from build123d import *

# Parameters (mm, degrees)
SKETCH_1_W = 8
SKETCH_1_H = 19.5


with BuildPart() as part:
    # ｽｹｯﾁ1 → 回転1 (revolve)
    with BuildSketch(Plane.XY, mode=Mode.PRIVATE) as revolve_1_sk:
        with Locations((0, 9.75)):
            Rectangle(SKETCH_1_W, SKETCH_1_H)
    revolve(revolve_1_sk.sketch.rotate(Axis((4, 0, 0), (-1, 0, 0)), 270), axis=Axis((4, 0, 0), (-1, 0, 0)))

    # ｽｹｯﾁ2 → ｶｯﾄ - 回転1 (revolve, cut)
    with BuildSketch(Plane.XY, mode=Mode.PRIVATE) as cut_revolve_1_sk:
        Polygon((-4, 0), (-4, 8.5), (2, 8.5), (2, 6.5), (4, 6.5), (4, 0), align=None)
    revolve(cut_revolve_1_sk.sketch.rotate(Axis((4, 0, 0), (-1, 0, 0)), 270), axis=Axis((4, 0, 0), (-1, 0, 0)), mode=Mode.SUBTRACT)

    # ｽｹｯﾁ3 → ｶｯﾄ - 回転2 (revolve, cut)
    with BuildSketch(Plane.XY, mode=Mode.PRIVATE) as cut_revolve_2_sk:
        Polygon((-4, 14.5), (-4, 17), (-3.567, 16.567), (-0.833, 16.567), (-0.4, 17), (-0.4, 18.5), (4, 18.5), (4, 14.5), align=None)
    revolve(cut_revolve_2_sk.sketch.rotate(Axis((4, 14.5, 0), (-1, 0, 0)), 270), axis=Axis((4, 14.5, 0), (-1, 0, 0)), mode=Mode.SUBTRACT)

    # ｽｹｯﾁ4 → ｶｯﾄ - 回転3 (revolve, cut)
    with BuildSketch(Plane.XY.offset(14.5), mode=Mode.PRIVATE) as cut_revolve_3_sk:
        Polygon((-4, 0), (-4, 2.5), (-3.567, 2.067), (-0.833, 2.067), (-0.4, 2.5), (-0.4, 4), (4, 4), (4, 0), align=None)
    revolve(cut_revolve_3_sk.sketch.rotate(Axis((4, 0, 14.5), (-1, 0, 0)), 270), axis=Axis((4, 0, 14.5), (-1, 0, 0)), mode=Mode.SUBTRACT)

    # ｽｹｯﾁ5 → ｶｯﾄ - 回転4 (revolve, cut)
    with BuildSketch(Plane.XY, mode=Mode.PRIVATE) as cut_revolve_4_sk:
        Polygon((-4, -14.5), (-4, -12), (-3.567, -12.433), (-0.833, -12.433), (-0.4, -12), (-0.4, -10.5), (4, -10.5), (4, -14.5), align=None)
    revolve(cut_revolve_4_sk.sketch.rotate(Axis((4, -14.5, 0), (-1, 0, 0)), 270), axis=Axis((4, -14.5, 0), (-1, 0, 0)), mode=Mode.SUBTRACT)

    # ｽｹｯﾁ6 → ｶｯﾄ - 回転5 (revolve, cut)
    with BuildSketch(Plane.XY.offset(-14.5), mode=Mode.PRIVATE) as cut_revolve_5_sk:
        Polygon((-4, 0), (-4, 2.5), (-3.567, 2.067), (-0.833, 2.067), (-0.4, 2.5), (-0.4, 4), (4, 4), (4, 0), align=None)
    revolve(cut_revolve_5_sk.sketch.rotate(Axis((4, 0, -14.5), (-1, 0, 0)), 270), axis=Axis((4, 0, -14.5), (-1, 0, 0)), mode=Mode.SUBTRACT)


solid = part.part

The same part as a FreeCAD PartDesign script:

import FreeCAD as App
import Part
import Sketcher

V = App.Vector
Q = App.Units.Quantity

doc = App.newDocument("Part")
body = doc.addObject("PartDesign::Body", "Body")

# Sketch on XY plane
sketch1 = doc.addObject("Sketcher::SketchObject", "Sketch")
body.addObject(sketch1)
sketch1.AttachmentSupport = (doc.XY_Plane, [""])
sketch1.MapMode = "FlatFace"
sketch1.addGeometry(Part.LineSegment(V(-4, 19.5, 0), V(-4, 0, 0)), False)
sketch1.addGeometry(Part.LineSegment(V(-4, 0, 0), V(4, 0, 0)), False)
sketch1.addGeometry(Part.LineSegment(V(4, 0, 0), V(4, 19.5, 0)), False)
sketch1.addGeometry(Part.LineSegment(V(4, 19.5, 0), V(-4, 19.5, 0)), False)
sketch1.addConstraint(Sketcher.Constraint("Coincident", 0, 2, 1, 1))
sketch1.addConstraint(Sketcher.Constraint("Coincident", 1, 2, 2, 1))
sketch1.addConstraint(Sketcher.Constraint("Coincident", 2, 2, 3, 1))
sketch1.addConstraint(Sketcher.Constraint("Coincident", 3, 2, 0, 1))
sketch1.addConstraint(Sketcher.Constraint("Vertical", 0))
sketch1.addConstraint(Sketcher.Constraint("Horizontal", 1))
sketch1.addConstraint(Sketcher.Constraint("Vertical", 2))
sketch1.addConstraint(Sketcher.Constraint("Horizontal", 3))
sketch1.addConstraint(Sketcher.Constraint("Symmetric", 0, 2, 1, 2, -1, 1))
sketch1.addConstraint(Sketcher.Constraint("DistanceX", 1, 1, 1, 2, Q("8 mm")))
sketch1.addConstraint(Sketcher.Constraint("DistanceY", 0, 2, 0, 1, Q("19.5 mm")))
revolution = doc.addObject("PartDesign::Revolution", "Revolution")
body.addObject(revolution)
revolution.Profile = sketch1
revolution.ReferenceAxis = (sketch1, ["H_Axis"])
revolution.Angle = 360

# Sketch on XY plane
sketch2 = doc.addObject("Sketcher::SketchObject", "Sketch001")
body.addObject(sketch2)
sketch2.AttachmentSupport = (doc.XY_Plane, [""])
sketch2.MapMode = "FlatFace"
sketch2.addGeometry(Part.LineSegment(V(-4, 8.5, 0), V(-4, 0, 0)), False)
sketch2.addGeometry(Part.LineSegment(V(-4, 0, 0), V(4, 0, 0)), False)
sketch2.addGeometry(Part.LineSegment(V(4, 0, 0), V(4, 6.5, 0)), False)
sketch2.addGeometry(Part.LineSegment(V(4, 6.5, 0), V(2, 6.5, 0)), False)
sketch2.addGeometry(Part.LineSegment(V(2, 6.5, 0), V(2, 8.5, 0)), False)
sketch2.addGeometry(Part.LineSegment(V(2, 8.5, 0), V(-4, 8.5, 0)), False)
sketch2.addConstraint(Sketcher.Constraint("Coincident", 0, 2, 1, 1))
sketch2.addConstraint(Sketcher.Constraint("Coincident", 1, 2, 2, 1))
sketch2.addConstraint(Sketcher.Constraint("Coincident", 2, 2, 3, 1))
sketch2.addConstraint(Sketcher.Constraint("Coincident", 3, 2, 4, 1))
sketch2.addConstraint(Sketcher.Constraint("Coincident", 4, 2, 5, 1))
sketch2.addConstraint(Sketcher.Constraint("Coincident", 5, 2, 0, 1))
sketch2.addConstraint(Sketcher.Constraint("Vertical", 0))
sketch2.addConstraint(Sketcher.Constraint("Horizontal", 1))
sketch2.addConstraint(Sketcher.Constraint("Vertical", 2))
sketch2.addConstraint(Sketcher.Constraint("Horizontal", 3))
sketch2.addConstraint(Sketcher.Constraint("Vertical", 4))
sketch2.addConstraint(Sketcher.Constraint("Horizontal", 5))
sketch2.addConstraint(Sketcher.Constraint("Symmetric", 0, 2, 1, 2, -1, 1))
sketch2.addConstraint(Sketcher.Constraint("Equal", 3, 4))
sketch2.addConstraint(Sketcher.Constraint("DistanceX", 1, 1, 1, 2, Q("8 mm")))
sketch2.addConstraint(Sketcher.Constraint("DistanceX", 3, 2, 3, 1, Q("2 mm")))
sketch2.addConstraint(Sketcher.Constraint("DistanceY", 0, 2, 0, 1, Q("8.5 mm")))
groove = doc.addObject("PartDesign::Groove", "Groove")
body.addObject(groove)
groove.Profile = sketch2
groove.ReferenceAxis = (sketch2, ["H_Axis"])
groove.Angle = 360

# Sketch on XY plane
sketch3 = doc.addObject("Sketcher::SketchObject", "Sketch002")
body.addObject(sketch3)
sketch3.AttachmentSupport = (doc.XY_Plane, [""])
sketch3.MapMode = "FlatFace"
sketch3.addGeometry(Part.LineSegment(V(-4, 17, 0), V(-4, 14.5, 0)), False)
sketch3.addGeometry(Part.LineSegment(V(-4, 14.5, 0), V(4, 14.5, 0)), False)
sketch3.addGeometry(Part.LineSegment(V(4, 14.5, 0), V(4, 18.5, 0)), False)
sketch3.addGeometry(Part.LineSegment(V(4, 18.5, 0), V(-0.4, 18.5, 0)), False)
sketch3.addGeometry(Part.LineSegment(V(-0.4, 18.5, 0), V(-0.4, 17, 0)), False)
sketch3.addGeometry(Part.LineSegment(V(-0.4, 17, 0), V(-0.833, 16.567, 0)), False)
sketch3.addGeometry(Part.LineSegment(V(-0.833, 16.567, 0), V(-3.567, 16.567, 0)), False)
sketch3.addGeometry(Part.LineSegment(V(-3.567, 16.567, 0), V(-4, 17, 0)), False)
sketch3.addGeometry(Part.LineSegment(V(4, 14.5, 0), V(-4, 14.5, 0)), True)  # axis
sketch3.addConstraint(Sketcher.Constraint("Coincident", 0, 2, 1, 1))
sketch3.addConstraint(Sketcher.Constraint("Coincident", 1, 2, 2, 1))
sketch3.addConstraint(Sketcher.Constraint("Coincident", 2, 2, 3, 1))
sketch3.addConstraint(Sketcher.Constraint("Coincident", 3, 2, 4, 1))
sketch3.addConstraint(Sketcher.Constraint("Coincident", 4, 2, 5, 1))
sketch3.addConstraint(Sketcher.Constraint("Coincident", 5, 2, 6, 1))
sketch3.addConstraint(Sketcher.Constraint("Coincident", 6, 2, 7, 1))
sketch3.addConstraint(Sketcher.Constraint("Coincident", 7, 2, 0, 1))
sketch3.addConstraint(Sketcher.Constraint("Vertical", 0))
sketch3.addConstraint(Sketcher.Constraint("Horizontal", 1))
sketch3.addConstraint(Sketcher.Constraint("Vertical", 2))
sketch3.addConstraint(Sketcher.Constraint("Horizontal", 3))
sketch3.addConstraint(Sketcher.Constraint("Vertical", 4))
sketch3.addConstraint(Sketcher.Constraint("Horizontal", 6))
sketch3.addConstraint(Sketcher.Constraint("Horizontal", 8))
sketch3.addConstraint(Sketcher.Constraint("Coincident", 8, 1, 1, 2))
sketch3.addConstraint(Sketcher.Constraint("Perpendicular", 5, 7))
sketch3.addConstraint(Sketcher.Constraint("Horizontal", 4, 2, 7, 2))
sketch3.addConstraint(Sketcher.Constraint("Vertical", 7, 2, 8, 2))
sketch3.addConstraint(Sketcher.Constraint("Equal", 5, 7))
sketch3.addConstraint(Sketcher.Constraint("DistanceX", 1, 1, 1, 2, Q("8 mm")))
sketch3.addConstraint(Sketcher.Constraint("DistanceY", 2, 1, 2, 2, Q("4 mm")))
sketch3.addConstraint(Sketcher.Constraint("DistanceX", 3, 2, 3, 1, Q("4.4 mm")))
sketch3.addConstraint(Sketcher.Constraint("DistanceY", 0, 2, 0, 1, Q("2.5 mm")))
sketch3.addConstraint(Sketcher.Constraint("DistanceX", 0, 2, -1, 1, Q("4 mm")))
sketch3.addConstraint(Sketcher.Constraint("DistanceY", -1, 1, 4, 2, Q("17 mm")))
sketch3.addConstraint(Sketcher.Constraint("DistanceX", 6, 2, 6, 1, Q("2.734 mm")))
groove2 = doc.addObject("PartDesign::Groove", "Groove001")
body.addObject(groove2)
groove2.Profile = sketch3
groove2.ReferenceAxis = (sketch3, ["Axis0"])
groove2.Angle = 360

# Sketch on XY plane
sketch4 = doc.addObject("Sketcher::SketchObject", "Sketch003")
body.addObject(sketch4)
sketch4.AttachmentSupport = (doc.XY_Plane, [""])
sketch4.MapMode = "FlatFace"
sketch4.AttachmentOffset = App.Placement(V(0, 0, 14.5), App.Rotation())
sketch4.addGeometry(Part.LineSegment(V(-4, 2.5, 0), V(-4, 0, 0)), False)
sketch4.addGeometry(Part.LineSegment(V(-4, 0, 0), V(4, 0, 0)), False)
sketch4.addGeometry(Part.LineSegment(V(4, 0, 0), V(4, 4, 0)), False)
sketch4.addGeometry(Part.LineSegment(V(4, 4, 0), V(-0.4, 4, 0)), False)
sketch4.addGeometry(Part.LineSegment(V(-0.4, 4, 0), V(-0.4, 2.5, 0)), False)
sketch4.addGeometry(Part.LineSegment(V(-0.4, 2.5, 0), V(-0.833, 2.067, 0)), False)
sketch4.addGeometry(Part.LineSegment(V(-0.833, 2.067, 0), V(-3.567, 2.067, 0)), False)
sketch4.addGeometry(Part.LineSegment(V(-3.567, 2.067, 0), V(-4, 2.5, 0)), False)
sketch4.addConstraint(Sketcher.Constraint("Coincident", 0, 2, 1, 1))
sketch4.addConstraint(Sketcher.Constraint("Coincident", 1, 2, 2, 1))
sketch4.addConstraint(Sketcher.Constraint("Coincident", 2, 2, 3, 1))
sketch4.addConstraint(Sketcher.Constraint("Coincident", 3, 2, 4, 1))
sketch4.addConstraint(Sketcher.Constraint("Coincident", 4, 2, 5, 1))
sketch4.addConstraint(Sketcher.Constraint("Coincident", 5, 2, 6, 1))
sketch4.addConstraint(Sketcher.Constraint("Coincident", 6, 2, 7, 1))
sketch4.addConstraint(Sketcher.Constraint("Coincident", 7, 2, 0, 1))
sketch4.addConstraint(Sketcher.Constraint("Vertical", 0))
sketch4.addConstraint(Sketcher.Constraint("Horizontal", 1))
sketch4.addConstraint(Sketcher.Constraint("Vertical", 2))
sketch4.addConstraint(Sketcher.Constraint("Horizontal", 3))
sketch4.addConstraint(Sketcher.Constraint("Vertical", 4))
sketch4.addConstraint(Sketcher.Constraint("Horizontal", 6))
sketch4.addConstraint(Sketcher.Constraint("Symmetric", 0, 2, 1, 2, -1, 1))
sketch4.addConstraint(Sketcher.Constraint("Perpendicular", 5, 7))
sketch4.addConstraint(Sketcher.Constraint("Horizontal", 4, 2, 7, 2))
sketch4.addConstraint(Sketcher.Constraint("Equal", 5, 7))
sketch4.addConstraint(Sketcher.Constraint("DistanceX", 1, 1, 1, 2, Q("8 mm")))
sketch4.addConstraint(Sketcher.Constraint("DistanceY", 2, 1, 2, 2, Q("4 mm")))
sketch4.addConstraint(Sketcher.Constraint("DistanceX", 3, 2, 3, 1, Q("4.4 mm")))
sketch4.addConstraint(Sketcher.Constraint("DistanceY", 0, 2, 0, 1, Q("2.5 mm")))
sketch4.addConstraint(Sketcher.Constraint("DistanceX", 6, 2, 6, 1, Q("2.734 mm")))
groove3 = doc.addObject("PartDesign::Groove", "Groove002")
body.addObject(groove3)
groove3.Profile = sketch4
groove3.ReferenceAxis = (sketch4, ["H_Axis"])
groove3.Angle = 360

# Sketch on XY plane
sketch5 = doc.addObject("Sketcher::SketchObject", "Sketch004")
body.addObject(sketch5)
sketch5.AttachmentSupport = (doc.XY_Plane, [""])
sketch5.MapMode = "FlatFace"
sketch5.addGeometry(Part.LineSegment(V(-4, -12, 0), V(-4, -14.5, 0)), False)
sketch5.addGeometry(Part.LineSegment(V(-4, -14.5, 0), V(4, -14.5, 0)), False)
sketch5.addGeometry(Part.LineSegment(V(4, -14.5, 0), V(4, -10.5, 0)), False)
sketch5.addGeometry(Part.LineSegment(V(4, -10.5, 0), V(-0.4, -10.5, 0)), False)
sketch5.addGeometry(Part.LineSegment(V(-0.4, -10.5, 0), V(-0.4, -12, 0)), False)
sketch5.addGeometry(Part.LineSegment(V(-0.4, -12, 0), V(-0.833, -12.433, 0)), False)
sketch5.addGeometry(Part.LineSegment(V(-0.833, -12.433, 0), V(-3.567, -12.433, 0)), False)
sketch5.addGeometry(Part.LineSegment(V(-3.567, -12.433, 0), V(-4, -12, 0)), False)
sketch5.addGeometry(Part.LineSegment(V(4, -14.5, 0), V(-4, -14.5, 0)), True)  # axis
sketch5.addConstraint(Sketcher.Constraint("Coincident", 0, 2, 1, 1))
sketch5.addConstraint(Sketcher.Constraint("Coincident", 1, 2, 2, 1))
sketch5.addConstraint(Sketcher.Constraint("Coincident", 2, 2, 3, 1))
sketch5.addConstraint(Sketcher.Constraint("Coincident", 3, 2, 4, 1))
sketch5.addConstraint(Sketcher.Constraint("Coincident", 4, 2, 5, 1))
sketch5.addConstraint(Sketcher.Constraint("Coincident", 5, 2, 6, 1))
sketch5.addConstraint(Sketcher.Constraint("Coincident", 6, 2, 7, 1))
sketch5.addConstraint(Sketcher.Constraint("Coincident", 7, 2, 0, 1))
sketch5.addConstraint(Sketcher.Constraint("Vertical", 0))
sketch5.addConstraint(Sketcher.Constraint("Horizontal", 1))
sketch5.addConstraint(Sketcher.Constraint("Vertical", 2))
sketch5.addConstraint(Sketcher.Constraint("Horizontal", 3))
sketch5.addConstraint(Sketcher.Constraint("Vertical", 4))
sketch5.addConstraint(Sketcher.Constraint("Horizontal", 6))
sketch5.addConstraint(Sketcher.Constraint("Horizontal", 8))
sketch5.addConstraint(Sketcher.Constraint("Coincident", 8, 1, 1, 2))
sketch5.addConstraint(Sketcher.Constraint("Perpendicular", 5, 7))
sketch5.addConstraint(Sketcher.Constraint("Horizontal", 4, 2, 7, 2))
sketch5.addConstraint(Sketcher.Constraint("Vertical", 7, 2, 8, 2))
sketch5.addConstraint(Sketcher.Constraint("Equal", 5, 7))
sketch5.addConstraint(Sketcher.Constraint("DistanceX", 1, 1, 1, 2, Q("8 mm")))
sketch5.addConstraint(Sketcher.Constraint("DistanceY", 2, 1, 2, 2, Q("4 mm")))
sketch5.addConstraint(Sketcher.Constraint("DistanceX", 3, 2, 3, 1, Q("4.4 mm")))
sketch5.addConstraint(Sketcher.Constraint("DistanceY", 0, 2, 0, 1, Q("2.5 mm")))
sketch5.addConstraint(Sketcher.Constraint("DistanceX", 0, 2, -1, 1, Q("4 mm")))
sketch5.addConstraint(Sketcher.Constraint("DistanceY", 4, 2, -1, 1, Q("12 mm")))
sketch5.addConstraint(Sketcher.Constraint("DistanceX", 6, 2, 6, 1, Q("2.734 mm")))
groove4 = doc.addObject("PartDesign::Groove", "Groove003")
body.addObject(groove4)
groove4.Profile = sketch5
groove4.ReferenceAxis = (sketch5, ["Axis0"])
groove4.Angle = 360

# Sketch on XY plane
sketch6 = doc.addObject("Sketcher::SketchObject", "Sketch005")
body.addObject(sketch6)
sketch6.AttachmentSupport = (doc.XY_Plane, [""])
sketch6.MapMode = "FlatFace"
sketch6.AttachmentOffset = App.Placement(V(0, 0, -14.5), App.Rotation())
sketch6.addGeometry(Part.LineSegment(V(-4, 2.5, 0), V(-4, 0, 0)), False)
sketch6.addGeometry(Part.LineSegment(V(-4, 0, 0), V(4, 0, 0)), False)
sketch6.addGeometry(Part.LineSegment(V(4, 0, 0), V(4, 4, 0)), False)
sketch6.addGeometry(Part.LineSegment(V(4, 4, 0), V(-0.4, 4, 0)), False)
sketch6.addGeometry(Part.LineSegment(V(-0.4, 4, 0), V(-0.4, 2.5, 0)), False)
sketch6.addGeometry(Part.LineSegment(V(-0.4, 2.5, 0), V(-0.833, 2.067, 0)), False)
sketch6.addGeometry(Part.LineSegment(V(-0.833, 2.067, 0), V(-3.567, 2.067, 0)), False)
sketch6.addGeometry(Part.LineSegment(V(-3.567, 2.067, 0), V(-4, 2.5, 0)), False)
sketch6.addConstraint(Sketcher.Constraint("Coincident", 0, 2, 1, 1))
sketch6.addConstraint(Sketcher.Constraint("Coincident", 1, 2, 2, 1))
sketch6.addConstraint(Sketcher.Constraint("Coincident", 2, 2, 3, 1))
sketch6.addConstraint(Sketcher.Constraint("Coincident", 3, 2, 4, 1))
sketch6.addConstraint(Sketcher.Constraint("Coincident", 4, 2, 5, 1))
sketch6.addConstraint(Sketcher.Constraint("Coincident", 5, 2, 6, 1))
sketch6.addConstraint(Sketcher.Constraint("Coincident", 6, 2, 7, 1))
sketch6.addConstraint(Sketcher.Constraint("Coincident", 7, 2, 0, 1))
sketch6.addConstraint(Sketcher.Constraint("Vertical", 0))
sketch6.addConstraint(Sketcher.Constraint("Horizontal", 1))
sketch6.addConstraint(Sketcher.Constraint("Vertical", 2))
sketch6.addConstraint(Sketcher.Constraint("Horizontal", 3))
sketch6.addConstraint(Sketcher.Constraint("Vertical", 4))
sketch6.addConstraint(Sketcher.Constraint("Horizontal", 6))
sketch6.addConstraint(Sketcher.Constraint("Symmetric", 0, 2, 1, 2, -1, 1))
sketch6.addConstraint(Sketcher.Constraint("Perpendicular", 5, 7))
sketch6.addConstraint(Sketcher.Constraint("Horizontal", 4, 2, 7, 2))
sketch6.addConstraint(Sketcher.Constraint("Equal", 5, 7))
sketch6.addConstraint(Sketcher.Constraint("DistanceX", 1, 1, 1, 2, Q("8 mm")))
sketch6.addConstraint(Sketcher.Constraint("DistanceY", 2, 1, 2, 2, Q("4 mm")))
sketch6.addConstraint(Sketcher.Constraint("DistanceX", 3, 2, 3, 1, Q("4.4 mm")))
sketch6.addConstraint(Sketcher.Constraint("DistanceY", 0, 2, 0, 1, Q("2.5 mm")))
sketch6.addConstraint(Sketcher.Constraint("DistanceX", 6, 2, 6, 1, Q("2.734 mm")))
groove5 = doc.addObject("PartDesign::Groove", "Groove004")
body.addObject(groove5)
groove5.Profile = sketch6
groove5.ReferenceAxis = (sketch6, ["H_Axis"])
groove5.Angle = 360

doc.recompute()
